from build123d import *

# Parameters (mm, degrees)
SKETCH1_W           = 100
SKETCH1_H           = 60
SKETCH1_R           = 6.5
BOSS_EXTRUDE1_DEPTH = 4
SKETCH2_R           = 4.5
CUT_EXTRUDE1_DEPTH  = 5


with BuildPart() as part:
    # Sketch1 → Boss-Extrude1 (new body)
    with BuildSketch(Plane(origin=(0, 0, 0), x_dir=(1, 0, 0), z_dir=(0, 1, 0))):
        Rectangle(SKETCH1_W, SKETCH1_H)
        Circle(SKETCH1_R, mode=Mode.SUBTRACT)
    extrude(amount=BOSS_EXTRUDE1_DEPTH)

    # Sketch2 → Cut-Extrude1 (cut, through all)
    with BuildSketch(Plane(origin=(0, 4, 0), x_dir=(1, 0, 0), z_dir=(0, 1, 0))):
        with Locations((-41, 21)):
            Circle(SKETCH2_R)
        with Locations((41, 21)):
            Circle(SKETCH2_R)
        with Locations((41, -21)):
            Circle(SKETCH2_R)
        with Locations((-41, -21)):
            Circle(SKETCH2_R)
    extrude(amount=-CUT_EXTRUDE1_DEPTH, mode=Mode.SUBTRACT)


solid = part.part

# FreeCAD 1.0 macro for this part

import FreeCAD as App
import Part
import Sketcher
from FreeCAD import Vector

doc = App.newDocument("Part")
body = doc.addObject("PartDesign::Body", "Body")

# Sketch on XZ plane
sketch1 = body.newObject("Sketcher::SketchObject", "Sketch")
sketch1.AttachmentSupport = (doc.getObject("XZ_Plane"), [""])
sketch1.MapMode = "FlatFace"
sketch1.addGeometry([
    Part.LineSegment(Vector(-50, -30, 0), Vector(-50, 30, 0)),  # 0
    Part.LineSegment(Vector(-50, 30, 0), Vector(50, 30, 0)),  # 1
    Part.LineSegment(Vector(50, 30, 0), Vector(50, -30, 0)),  # 2
    Part.LineSegment(Vector(50, -30, 0), Vector(-50, -30, 0)),  # 3
    Part.Circle(Vector(0, 0, 0), Vector(0, 0, 1), 6.5),  # 4
], False)
sketch1.addConstraint([
    Sketcher.Constraint("Coincident", 0, 2, 1, 1),
    Sketcher.Constraint("Coincident", 1, 2, 2, 1),
    Sketcher.Constraint("Coincident", 2, 2, 3, 1),
    Sketcher.Constraint("Coincident", 3, 2, 0, 1),
    Sketcher.Constraint("Vertical", 0),
    Sketcher.Constraint("Horizontal", 1),
    Sketcher.Constraint("Vertical", 2),
    Sketcher.Constraint("Horizontal", 3),
    Sketcher.Constraint("Coincident", 4, 3, -1, 1),
    Sketcher.Constraint("Symmetric", 0, 2, 2, 2, -1, 1),
    Sketcher.Constraint("Diameter", 4, 13.0),
    Sketcher.Constraint("DistanceX", 1, 1, 1, 2, 100.0),
    Sketcher.Constraint("DistanceY", 0, 1, 0, 2, 60.0),
])
pad1 = body.newObject("PartDesign::Pad", "Pad")
pad1.Profile = sketch1
pad1.Length = 4
pad1.Reversed = True

# Sketch on XZ plane
sketch2 = body.newObject("Sketcher::SketchObject", "Sketch001")
sketch2.AttachmentSupport = (doc.getObject("XZ_Plane"), [""])
sketch2.MapMode = "FlatFace"
sketch2.AttachmentOffset = App.Placement(Vector(0, 0, -4), App.Rotation())
sketch2.addGeometry([
    Part.Circle(Vector(-41, -21, 0), Vector(0, 0, 1), 4.5),
    Part.Circle(Vector(41, -21, 0), Vector(0, 0, 1), 4.5),
    Part.Circle(Vector(41, 21, 0), Vector(0, 0, 1), 4.5),
    Part.Circle(Vector(-41, 21, 0), Vector(0, 0, 1), 4.5),
], False)
sketch2.addConstraint([
    Sketcher.Constraint("Equal", 0, 1),
    Sketcher.Constraint("Equal", 1, 2),
    Sketcher.Constraint("Equal", 2, 3),
    Sketcher.Constraint("Symmetric", 0, 3, 2, 3, -1, 1),
    Sketcher.Constraint("Symmetric", 1, 3, 3, 3, -1, 1),
    Sketcher.Constraint("Symmetric", 0, 3, 1, 3, -2),
    Sketcher.Constraint("Diameter", 0, 9.0),
    Sketcher.Constraint("DistanceX", 0, 3, -1, 1, 41.0),
    Sketcher.Constraint("DistanceY", 0, 3, -1, 1, 21.0),
])
pocket1 = body.newObject("PartDesign::Pocket", "Pocket")
pocket1.Profile = sketch2
pocket1.Type = "ThroughAll"
pocket1.Reversed = True

doc.recompute()
